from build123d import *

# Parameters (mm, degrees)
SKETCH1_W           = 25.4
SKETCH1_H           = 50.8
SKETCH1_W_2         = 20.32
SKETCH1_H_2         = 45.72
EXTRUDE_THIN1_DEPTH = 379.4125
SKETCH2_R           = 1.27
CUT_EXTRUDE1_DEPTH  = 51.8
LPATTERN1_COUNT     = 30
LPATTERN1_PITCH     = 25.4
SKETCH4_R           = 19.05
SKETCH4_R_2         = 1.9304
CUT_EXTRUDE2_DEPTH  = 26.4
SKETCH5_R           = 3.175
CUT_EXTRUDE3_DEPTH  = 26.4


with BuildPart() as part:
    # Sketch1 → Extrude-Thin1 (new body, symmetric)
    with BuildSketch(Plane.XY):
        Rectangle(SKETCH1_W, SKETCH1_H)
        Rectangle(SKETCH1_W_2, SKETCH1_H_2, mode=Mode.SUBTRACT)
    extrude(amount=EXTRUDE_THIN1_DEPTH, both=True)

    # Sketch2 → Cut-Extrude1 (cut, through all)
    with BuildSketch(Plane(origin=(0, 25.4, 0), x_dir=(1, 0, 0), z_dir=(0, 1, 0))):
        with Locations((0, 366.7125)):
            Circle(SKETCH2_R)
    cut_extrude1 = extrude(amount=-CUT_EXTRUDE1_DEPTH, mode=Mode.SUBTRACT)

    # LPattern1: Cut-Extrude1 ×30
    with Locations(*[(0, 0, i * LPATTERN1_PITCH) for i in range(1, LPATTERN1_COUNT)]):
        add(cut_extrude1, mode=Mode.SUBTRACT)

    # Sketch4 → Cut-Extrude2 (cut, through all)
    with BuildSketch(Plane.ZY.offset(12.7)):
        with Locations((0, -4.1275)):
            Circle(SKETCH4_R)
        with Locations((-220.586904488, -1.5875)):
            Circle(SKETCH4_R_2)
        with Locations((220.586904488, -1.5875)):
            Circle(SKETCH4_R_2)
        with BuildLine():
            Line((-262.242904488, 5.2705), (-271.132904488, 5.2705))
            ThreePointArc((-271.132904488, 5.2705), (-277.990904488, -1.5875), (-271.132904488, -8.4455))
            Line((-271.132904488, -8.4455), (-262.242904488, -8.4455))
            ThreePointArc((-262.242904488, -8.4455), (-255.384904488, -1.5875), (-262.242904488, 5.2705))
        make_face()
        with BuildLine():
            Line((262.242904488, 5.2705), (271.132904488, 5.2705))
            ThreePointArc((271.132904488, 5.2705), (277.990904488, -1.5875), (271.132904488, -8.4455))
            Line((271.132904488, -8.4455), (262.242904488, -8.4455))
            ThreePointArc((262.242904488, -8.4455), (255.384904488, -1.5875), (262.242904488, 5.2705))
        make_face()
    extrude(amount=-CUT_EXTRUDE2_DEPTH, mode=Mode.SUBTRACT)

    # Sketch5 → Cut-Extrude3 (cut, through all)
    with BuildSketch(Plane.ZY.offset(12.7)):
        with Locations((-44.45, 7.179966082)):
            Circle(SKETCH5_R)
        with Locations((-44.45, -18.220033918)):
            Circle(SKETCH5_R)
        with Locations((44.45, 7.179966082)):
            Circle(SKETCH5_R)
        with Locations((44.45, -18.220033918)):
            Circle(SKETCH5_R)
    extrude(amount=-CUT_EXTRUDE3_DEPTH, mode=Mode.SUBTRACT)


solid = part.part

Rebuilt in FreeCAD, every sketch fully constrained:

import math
import FreeCAD as App
import Part
import Sketcher
Q = App.Units.Quantity


def add_polygon(sketch, points):
    """Adds a closed chain of lines whose ends are joined by coincident constraints."""
    first, n = sketch.GeometryCount, len(points)
    for a, b in zip(points, points[1:] + points[:1]):
        sketch.addGeometry(Part.LineSegment(App.Vector(*a, 0), App.Vector(*b, 0)), False)
    for i in range(n):
        sketch.addConstraint(Sketcher.Constraint("Coincident", first + i, 2, first + (i + 1) % n, 1))

doc = App.newDocument("Part")
params = doc.addObject("Spreadsheet::Sheet", "Params")
for row, (alias, value) in enumerate([
    ("sketch1_width", "1 in"),
    ("sketch1_height", "2 in"),
    ("sketch1_width2", "0.8 in"),
    ("sketch1_height2", "1.8 in"),
    ("pad1_length", "29.875 in"),
    ("sketch2_diameter", "0.1 in"),
    ("linearpattern_pitch", "1 in"),
    ("sketch3_diameter", "1.5 in"),
    ("sketch3_radius", "0.27 in"),
    ("sketch3_diameter2", "0.152 in"),
    ("sketch3_height", "0.35 in"),
    ("sketch4_diameter", "0.25 in"),
], start=1):
    params.set(f"A{row}", alias)
    params.set(f"B{row}", "=" + value)
    params.setAlias(f"B{row}", alias)

body = doc.addObject("PartDesign::Body", "Body")

sketch1 = doc.addObject("Sketcher::SketchObject", "Sketch")
body.addObject(sketch1)
sketch1.AttachmentSupport = (doc.XY_Plane, [""])
sketch1.MapMode = "FlatFace"
add_polygon(sketch1, [(-12.7, 25.4), (-12.7, -25.4), (12.7, -25.4), (12.7, 25.4)])
add_polygon(sketch1, [(10.16, -22.86), (-10.16, -22.86), (-10.16, 22.86), (10.16, 22.86)])
sketch1.addConstraint(Sketcher.Constraint("Vertical", 0))
sketch1.addConstraint(Sketcher.Constraint("Horizontal", 1))
sketch1.addConstraint(Sketcher.Constraint("Vertical", 2))
sketch1.addConstraint(Sketcher.Constraint("Horizontal", 3))
sketch1.addConstraint(Sketcher.Constraint("Horizontal", 4))
sketch1.addConstraint(Sketcher.Constraint("Vertical", 5))
sketch1.addConstraint(Sketcher.Constraint("Horizontal", 6))
sketch1.addConstraint(Sketcher.Constraint("Vertical", 7))
sketch1.addConstraint(Sketcher.Constraint("Symmetric", 0, 2, 2, 2, -1, 1))
sketch1.addConstraint(Sketcher.Constraint("Symmetric", 4, 2, 6, 2, -1, 1))
sketch1.addConstraint(Sketcher.Constraint("DistanceX", 1, 1, 1, 2, Q("1 in")))
sketch1.addConstraint(Sketcher.Constraint("DistanceY", 0, 2, 0, 1, Q("2 in")))
sketch1.addConstraint(Sketcher.Constraint("DistanceX", 4, 2, 4, 1, Q("0.8 in")))
sketch1.addConstraint(Sketcher.Constraint("DistanceY", 5, 1, 5, 2, Q("1.8 in")))
sketch1.setExpression("Constraints[18]", "Params.sketch1_width")
sketch1.setExpression("Constraints[19]", "Params.sketch1_height")
sketch1.setExpression("Constraints[20]", "Params.sketch1_width2")
sketch1.setExpression("Constraints[21]", "Params.sketch1_height2")
pad1 = doc.addObject("PartDesign::Pad", "Pad")
body.addObject(pad1)
pad1.Profile = sketch1
pad1.setExpression("Length", "Params.pad1_length")
pad1.Midplane = True

sketch2 = doc.addObject("Sketcher::SketchObject", "Sketch001")
body.addObject(sketch2)
sketch2.AttachmentSupport = (doc.XZ_Plane, [""])
sketch2.MapMode = "FlatFace"
sketch2.AttachmentOffset = App.Placement(App.Vector(0, 0, -1 * 25.4), App.Rotation())
sketch2.addGeometry(Part.Circle(App.Vector(0, -366.7125, 0), App.Vector(0, 0, 1), 1.27), False)
sketch2.addConstraint(Sketcher.Constraint("PointOnObject", 0, 3, -2))
sketch2.addConstraint(Sketcher.Constraint("Diameter", 0, Q("0.1 in")))
sketch2.addConstraint(Sketcher.Constraint("DistanceY", 0, 3, -1, 1, Q("14.4375 in")))
sketch2.setExpression("Constraints[1]", "Params.sketch2_diameter")
pocket1 = doc.addObject("PartDesign::Pocket", "Pocket")
body.addObject(pocket1)
pocket1.Profile = sketch2
pocket1.Type = "ThroughAll"
pocket1.Reversed = True
doc.recompute()

linearpattern = doc.addObject("PartDesign::LinearPattern", "LinearPattern")
body.addObject(linearpattern)
linearpattern.Originals = [pocket1]
linearpattern.Direction = (doc.Z_Axis, [""])
linearpattern.Mode = "offset"
linearpattern.setExpression("Offset", "Params.linearpattern_pitch")
linearpattern.Occurrences = 30
body.Tip = linearpattern

sketch3 = doc.addObject("Sketcher::SketchObject", "Sketch002")
body.addObject(sketch3)
sketch3.AttachmentSupport = (doc.YZ_Plane, [""])
sketch3.MapMode = "FlatFace"
sketch3.AttachmentOffset = App.Placement(App.Vector(0, 0, -0.5 * 25.4), App.Rotation())
sketch3.addGeometry(Part.Circle(App.Vector(-4.1275, 0, 0), App.Vector(0, 0, 1), 19.05), False)
sketch3.addGeometry(Part.Circle(App.Vector(-1.5875, -220.586904, 0), App.Vector(0, 0, 1), 1.9304), False)
sketch3.addGeometry(Part.Circle(App.Vector(-1.5875, 220.586904, 0), App.Vector(0, 0, 1), 1.9304), False)
sketch3.addGeometry(Part.LineSegment(App.Vector(5.2705, -262.242904, 0), App.Vector(5.2705, -271.132904, 0)), False)
sketch3.addGeometry(Part.ArcOfCircle(Part.Circle(App.Vector(-1.5875, -271.132904, 0), App.Vector(0, 0, 1), 6.858), math.radians(180), math.radians(360)), False)
sketch3.addGeometry(Part.LineSegment(App.Vector(-8.4455, -271.132904, 0), App.Vector(-8.4455, -262.242904, 0)), False)
sketch3.addGeometry(Part.ArcOfCircle(Part.Circle(App.Vector(-1.5875, -262.242904, 0), App.Vector(0, 0, 1), 6.858), math.radians(0), math.radians(180)), False)
sketch3.addGeometry(Part.LineSegment(App.Vector(5.2705, 271.132904, 0), App.Vector(5.2705, 262.242904, 0)), False)
sketch3.addGeometry(Part.ArcOfCircle(Part.Circle(App.Vector(-1.5875, 262.242904, 0), App.Vector(0, 0, 1), 6.858), math.radians(180), math.radians(360)), False)
sketch3.addGeometry(Part.LineSegment(App.Vector(-8.4455, 262.242904, 0), App.Vector(-8.4455, 271.132904, 0)), False)
sketch3.addGeometry(Part.ArcOfCircle(Part.Circle(App.Vector(-1.5875, 271.132904, 0), App.Vector(0, 0, 1), 6.858), math.radians(0), math.radians(180)), False)
sketch3.addConstraint(Sketcher.Constraint("Tangent", 3, 2, 4, 2))
sketch3.addConstraint(Sketcher.Constraint("Tangent", 4, 1, 5, 1))
sketch3.addConstraint(Sketcher.Constraint("Tangent", 5, 2, 6, 2))
sketch3.addConstraint(Sketcher.Constraint("Tangent", 6, 1, 3, 1))
sketch3.addConstraint(Sketcher.Constraint("Tangent", 7, 2, 8, 2))
sketch3.addConstraint(Sketcher.Constraint("Tangent", 8, 1, 9, 1))
sketch3.addConstraint(Sketcher.Constraint("Tangent", 9, 2, 10, 2))
sketch3.addConstraint(Sketcher.Constraint("Tangent", 10, 1, 7, 1))
sketch3.addConstraint(Sketcher.Constraint("Vertical", 3))
sketch3.addConstraint(Sketcher.Constraint("Vertical", 5))
sketch3.addConstraint(Sketcher.Constraint("Vertical", 7))
sketch3.addConstraint(Sketcher.Constraint("Vertical", 9))
sketch3.addConstraint(Sketcher.Constraint("Equal", 1, 2))
sketch3.addConstraint(Sketcher.Constraint("Equal", 6, 8))
sketch3.addConstraint(Sketcher.Constraint("Symmetric", 1, 3, 2, 3, -1))
sketch3.addConstraint(Sketcher.Constraint("Symmetric", 6, 3, 8, 3, -1))
sketch3.addConstraint(Sketcher.Constraint("PointOnObject", 0, 3, -1))
sketch3.addConstraint(Sketcher.Constraint("Vertical", 2, 3, 4, 3))
sketch3.addConstraint(Sketcher.Constraint("Equal", 5, 7))
sketch3.addConstraint(Sketcher.Constraint("Diameter", 0, Q("1.5 in")))
sketch3.addConstraint(Sketcher.Constraint("Radius", 4, Q("0.27 in")))
sketch3.addConstraint(Sketcher.Constraint("Diameter", 1, Q("0.152 in")))
sketch3.addConstraint(Sketcher.Constraint("DistanceY", 3, 2, 3, 1, Q("0.35 in")))
sketch3.addConstraint(Sketcher.Constraint("DistanceX", 0, 3, 1, 3, Q("0.1 in")))
sketch3.addConstraint(Sketcher.Constraint("DistanceY", 4, 3, 1, 3, Q("1.99 in")))
sketch3.addConstraint(Sketcher.Constraint("DistanceX", 1, 3, -1, 1, Q("0.0625 in")))
sketch3.addConstraint(Sketcher.Constraint("DistanceY", 1, 3, 2, 3, Q("441.173809 mm")))
sketch3.setExpression("Constraints[19]", "Params.sketch3_diameter")
sketch3.setExpression("Constraints[20]", "Params.sketch3_radius")
sketch3.setExpression("Constraints[21]", "Params.sketch3_diameter2")
sketch3.setExpression("Constraints[22]", "Params.sketch3_height")
pocket2 = doc.addObject("PartDesign::Pocket", "Pocket001")
body.addObject(pocket2)
pocket2.Profile = sketch3
pocket2.Type = "ThroughAll"
pocket2.Reversed = True

sketch4 = doc.addObject("Sketcher::SketchObject", "Sketch003")
body.addObject(sketch4)
sketch4.AttachmentSupport = (doc.YZ_Plane, [""])
sketch4.MapMode = "FlatFace"
sketch4.AttachmentOffset = App.Placement(App.Vector(0, 0, -0.5 * 25.4), App.Rotation())
sketch4.addGeometry(Part.Circle(App.Vector(7.179966, -44.45, 0), App.Vector(0, 0, 1), 3.175), False)
sketch4.addGeometry(Part.Circle(App.Vector(-18.220034, -44.45, 0), App.Vector(0, 0, 1), 3.175), False)
sketch4.addGeometry(Part.Circle(App.Vector(7.179966, 44.45, 0), App.Vector(0, 0, 1), 3.175), False)
sketch4.addGeometry(Part.Circle(App.Vector(-18.220034, 44.45, 0), App.Vector(0, 0, 1), 3.175), False)
sketch4.addConstraint(Sketcher.Constraint("Equal", 0, 1))
sketch4.addConstraint(Sketcher.Constraint("Equal", 1, 2))
sketch4.addConstraint(Sketcher.Constraint("Equal", 2, 3))
sketch4.addConstraint(Sketcher.Constraint("Symmetric", 0, 3, 2, 3, -1))
sketch4.addConstraint(Sketcher.Constraint("Symmetric", 1, 3, 3, 3, -1))
sketch4.addConstraint(Sketcher.Constraint("Horizontal", 0, 3, 1, 3))
sketch4.addConstraint(Sketcher.Constraint("Diameter", 0, Q("0.25 in")))
sketch4.addConstraint(Sketcher.Constraint("DistanceX", 1, 3, 0, 3, Q("1 in")))
sketch4.addConstraint(Sketcher.Constraint("DistanceY", 0, 3, 2, 3, Q("3.5 in")))
sketch4.addConstraint(Sketcher.Constraint("DistanceX", -1, 1, 0, 3, Q("7.179966 mm")))
sketch4.setExpression("Constraints[6]", "Params.sketch4_diameter")
pocket3 = doc.addObject("PartDesign::Pocket", "Pocket002")
body.addObject(pocket3)
pocket3.Profile = sketch4
pocket3.Type = "ThroughAll"
pocket3.Reversed = True

doc.recompute()
